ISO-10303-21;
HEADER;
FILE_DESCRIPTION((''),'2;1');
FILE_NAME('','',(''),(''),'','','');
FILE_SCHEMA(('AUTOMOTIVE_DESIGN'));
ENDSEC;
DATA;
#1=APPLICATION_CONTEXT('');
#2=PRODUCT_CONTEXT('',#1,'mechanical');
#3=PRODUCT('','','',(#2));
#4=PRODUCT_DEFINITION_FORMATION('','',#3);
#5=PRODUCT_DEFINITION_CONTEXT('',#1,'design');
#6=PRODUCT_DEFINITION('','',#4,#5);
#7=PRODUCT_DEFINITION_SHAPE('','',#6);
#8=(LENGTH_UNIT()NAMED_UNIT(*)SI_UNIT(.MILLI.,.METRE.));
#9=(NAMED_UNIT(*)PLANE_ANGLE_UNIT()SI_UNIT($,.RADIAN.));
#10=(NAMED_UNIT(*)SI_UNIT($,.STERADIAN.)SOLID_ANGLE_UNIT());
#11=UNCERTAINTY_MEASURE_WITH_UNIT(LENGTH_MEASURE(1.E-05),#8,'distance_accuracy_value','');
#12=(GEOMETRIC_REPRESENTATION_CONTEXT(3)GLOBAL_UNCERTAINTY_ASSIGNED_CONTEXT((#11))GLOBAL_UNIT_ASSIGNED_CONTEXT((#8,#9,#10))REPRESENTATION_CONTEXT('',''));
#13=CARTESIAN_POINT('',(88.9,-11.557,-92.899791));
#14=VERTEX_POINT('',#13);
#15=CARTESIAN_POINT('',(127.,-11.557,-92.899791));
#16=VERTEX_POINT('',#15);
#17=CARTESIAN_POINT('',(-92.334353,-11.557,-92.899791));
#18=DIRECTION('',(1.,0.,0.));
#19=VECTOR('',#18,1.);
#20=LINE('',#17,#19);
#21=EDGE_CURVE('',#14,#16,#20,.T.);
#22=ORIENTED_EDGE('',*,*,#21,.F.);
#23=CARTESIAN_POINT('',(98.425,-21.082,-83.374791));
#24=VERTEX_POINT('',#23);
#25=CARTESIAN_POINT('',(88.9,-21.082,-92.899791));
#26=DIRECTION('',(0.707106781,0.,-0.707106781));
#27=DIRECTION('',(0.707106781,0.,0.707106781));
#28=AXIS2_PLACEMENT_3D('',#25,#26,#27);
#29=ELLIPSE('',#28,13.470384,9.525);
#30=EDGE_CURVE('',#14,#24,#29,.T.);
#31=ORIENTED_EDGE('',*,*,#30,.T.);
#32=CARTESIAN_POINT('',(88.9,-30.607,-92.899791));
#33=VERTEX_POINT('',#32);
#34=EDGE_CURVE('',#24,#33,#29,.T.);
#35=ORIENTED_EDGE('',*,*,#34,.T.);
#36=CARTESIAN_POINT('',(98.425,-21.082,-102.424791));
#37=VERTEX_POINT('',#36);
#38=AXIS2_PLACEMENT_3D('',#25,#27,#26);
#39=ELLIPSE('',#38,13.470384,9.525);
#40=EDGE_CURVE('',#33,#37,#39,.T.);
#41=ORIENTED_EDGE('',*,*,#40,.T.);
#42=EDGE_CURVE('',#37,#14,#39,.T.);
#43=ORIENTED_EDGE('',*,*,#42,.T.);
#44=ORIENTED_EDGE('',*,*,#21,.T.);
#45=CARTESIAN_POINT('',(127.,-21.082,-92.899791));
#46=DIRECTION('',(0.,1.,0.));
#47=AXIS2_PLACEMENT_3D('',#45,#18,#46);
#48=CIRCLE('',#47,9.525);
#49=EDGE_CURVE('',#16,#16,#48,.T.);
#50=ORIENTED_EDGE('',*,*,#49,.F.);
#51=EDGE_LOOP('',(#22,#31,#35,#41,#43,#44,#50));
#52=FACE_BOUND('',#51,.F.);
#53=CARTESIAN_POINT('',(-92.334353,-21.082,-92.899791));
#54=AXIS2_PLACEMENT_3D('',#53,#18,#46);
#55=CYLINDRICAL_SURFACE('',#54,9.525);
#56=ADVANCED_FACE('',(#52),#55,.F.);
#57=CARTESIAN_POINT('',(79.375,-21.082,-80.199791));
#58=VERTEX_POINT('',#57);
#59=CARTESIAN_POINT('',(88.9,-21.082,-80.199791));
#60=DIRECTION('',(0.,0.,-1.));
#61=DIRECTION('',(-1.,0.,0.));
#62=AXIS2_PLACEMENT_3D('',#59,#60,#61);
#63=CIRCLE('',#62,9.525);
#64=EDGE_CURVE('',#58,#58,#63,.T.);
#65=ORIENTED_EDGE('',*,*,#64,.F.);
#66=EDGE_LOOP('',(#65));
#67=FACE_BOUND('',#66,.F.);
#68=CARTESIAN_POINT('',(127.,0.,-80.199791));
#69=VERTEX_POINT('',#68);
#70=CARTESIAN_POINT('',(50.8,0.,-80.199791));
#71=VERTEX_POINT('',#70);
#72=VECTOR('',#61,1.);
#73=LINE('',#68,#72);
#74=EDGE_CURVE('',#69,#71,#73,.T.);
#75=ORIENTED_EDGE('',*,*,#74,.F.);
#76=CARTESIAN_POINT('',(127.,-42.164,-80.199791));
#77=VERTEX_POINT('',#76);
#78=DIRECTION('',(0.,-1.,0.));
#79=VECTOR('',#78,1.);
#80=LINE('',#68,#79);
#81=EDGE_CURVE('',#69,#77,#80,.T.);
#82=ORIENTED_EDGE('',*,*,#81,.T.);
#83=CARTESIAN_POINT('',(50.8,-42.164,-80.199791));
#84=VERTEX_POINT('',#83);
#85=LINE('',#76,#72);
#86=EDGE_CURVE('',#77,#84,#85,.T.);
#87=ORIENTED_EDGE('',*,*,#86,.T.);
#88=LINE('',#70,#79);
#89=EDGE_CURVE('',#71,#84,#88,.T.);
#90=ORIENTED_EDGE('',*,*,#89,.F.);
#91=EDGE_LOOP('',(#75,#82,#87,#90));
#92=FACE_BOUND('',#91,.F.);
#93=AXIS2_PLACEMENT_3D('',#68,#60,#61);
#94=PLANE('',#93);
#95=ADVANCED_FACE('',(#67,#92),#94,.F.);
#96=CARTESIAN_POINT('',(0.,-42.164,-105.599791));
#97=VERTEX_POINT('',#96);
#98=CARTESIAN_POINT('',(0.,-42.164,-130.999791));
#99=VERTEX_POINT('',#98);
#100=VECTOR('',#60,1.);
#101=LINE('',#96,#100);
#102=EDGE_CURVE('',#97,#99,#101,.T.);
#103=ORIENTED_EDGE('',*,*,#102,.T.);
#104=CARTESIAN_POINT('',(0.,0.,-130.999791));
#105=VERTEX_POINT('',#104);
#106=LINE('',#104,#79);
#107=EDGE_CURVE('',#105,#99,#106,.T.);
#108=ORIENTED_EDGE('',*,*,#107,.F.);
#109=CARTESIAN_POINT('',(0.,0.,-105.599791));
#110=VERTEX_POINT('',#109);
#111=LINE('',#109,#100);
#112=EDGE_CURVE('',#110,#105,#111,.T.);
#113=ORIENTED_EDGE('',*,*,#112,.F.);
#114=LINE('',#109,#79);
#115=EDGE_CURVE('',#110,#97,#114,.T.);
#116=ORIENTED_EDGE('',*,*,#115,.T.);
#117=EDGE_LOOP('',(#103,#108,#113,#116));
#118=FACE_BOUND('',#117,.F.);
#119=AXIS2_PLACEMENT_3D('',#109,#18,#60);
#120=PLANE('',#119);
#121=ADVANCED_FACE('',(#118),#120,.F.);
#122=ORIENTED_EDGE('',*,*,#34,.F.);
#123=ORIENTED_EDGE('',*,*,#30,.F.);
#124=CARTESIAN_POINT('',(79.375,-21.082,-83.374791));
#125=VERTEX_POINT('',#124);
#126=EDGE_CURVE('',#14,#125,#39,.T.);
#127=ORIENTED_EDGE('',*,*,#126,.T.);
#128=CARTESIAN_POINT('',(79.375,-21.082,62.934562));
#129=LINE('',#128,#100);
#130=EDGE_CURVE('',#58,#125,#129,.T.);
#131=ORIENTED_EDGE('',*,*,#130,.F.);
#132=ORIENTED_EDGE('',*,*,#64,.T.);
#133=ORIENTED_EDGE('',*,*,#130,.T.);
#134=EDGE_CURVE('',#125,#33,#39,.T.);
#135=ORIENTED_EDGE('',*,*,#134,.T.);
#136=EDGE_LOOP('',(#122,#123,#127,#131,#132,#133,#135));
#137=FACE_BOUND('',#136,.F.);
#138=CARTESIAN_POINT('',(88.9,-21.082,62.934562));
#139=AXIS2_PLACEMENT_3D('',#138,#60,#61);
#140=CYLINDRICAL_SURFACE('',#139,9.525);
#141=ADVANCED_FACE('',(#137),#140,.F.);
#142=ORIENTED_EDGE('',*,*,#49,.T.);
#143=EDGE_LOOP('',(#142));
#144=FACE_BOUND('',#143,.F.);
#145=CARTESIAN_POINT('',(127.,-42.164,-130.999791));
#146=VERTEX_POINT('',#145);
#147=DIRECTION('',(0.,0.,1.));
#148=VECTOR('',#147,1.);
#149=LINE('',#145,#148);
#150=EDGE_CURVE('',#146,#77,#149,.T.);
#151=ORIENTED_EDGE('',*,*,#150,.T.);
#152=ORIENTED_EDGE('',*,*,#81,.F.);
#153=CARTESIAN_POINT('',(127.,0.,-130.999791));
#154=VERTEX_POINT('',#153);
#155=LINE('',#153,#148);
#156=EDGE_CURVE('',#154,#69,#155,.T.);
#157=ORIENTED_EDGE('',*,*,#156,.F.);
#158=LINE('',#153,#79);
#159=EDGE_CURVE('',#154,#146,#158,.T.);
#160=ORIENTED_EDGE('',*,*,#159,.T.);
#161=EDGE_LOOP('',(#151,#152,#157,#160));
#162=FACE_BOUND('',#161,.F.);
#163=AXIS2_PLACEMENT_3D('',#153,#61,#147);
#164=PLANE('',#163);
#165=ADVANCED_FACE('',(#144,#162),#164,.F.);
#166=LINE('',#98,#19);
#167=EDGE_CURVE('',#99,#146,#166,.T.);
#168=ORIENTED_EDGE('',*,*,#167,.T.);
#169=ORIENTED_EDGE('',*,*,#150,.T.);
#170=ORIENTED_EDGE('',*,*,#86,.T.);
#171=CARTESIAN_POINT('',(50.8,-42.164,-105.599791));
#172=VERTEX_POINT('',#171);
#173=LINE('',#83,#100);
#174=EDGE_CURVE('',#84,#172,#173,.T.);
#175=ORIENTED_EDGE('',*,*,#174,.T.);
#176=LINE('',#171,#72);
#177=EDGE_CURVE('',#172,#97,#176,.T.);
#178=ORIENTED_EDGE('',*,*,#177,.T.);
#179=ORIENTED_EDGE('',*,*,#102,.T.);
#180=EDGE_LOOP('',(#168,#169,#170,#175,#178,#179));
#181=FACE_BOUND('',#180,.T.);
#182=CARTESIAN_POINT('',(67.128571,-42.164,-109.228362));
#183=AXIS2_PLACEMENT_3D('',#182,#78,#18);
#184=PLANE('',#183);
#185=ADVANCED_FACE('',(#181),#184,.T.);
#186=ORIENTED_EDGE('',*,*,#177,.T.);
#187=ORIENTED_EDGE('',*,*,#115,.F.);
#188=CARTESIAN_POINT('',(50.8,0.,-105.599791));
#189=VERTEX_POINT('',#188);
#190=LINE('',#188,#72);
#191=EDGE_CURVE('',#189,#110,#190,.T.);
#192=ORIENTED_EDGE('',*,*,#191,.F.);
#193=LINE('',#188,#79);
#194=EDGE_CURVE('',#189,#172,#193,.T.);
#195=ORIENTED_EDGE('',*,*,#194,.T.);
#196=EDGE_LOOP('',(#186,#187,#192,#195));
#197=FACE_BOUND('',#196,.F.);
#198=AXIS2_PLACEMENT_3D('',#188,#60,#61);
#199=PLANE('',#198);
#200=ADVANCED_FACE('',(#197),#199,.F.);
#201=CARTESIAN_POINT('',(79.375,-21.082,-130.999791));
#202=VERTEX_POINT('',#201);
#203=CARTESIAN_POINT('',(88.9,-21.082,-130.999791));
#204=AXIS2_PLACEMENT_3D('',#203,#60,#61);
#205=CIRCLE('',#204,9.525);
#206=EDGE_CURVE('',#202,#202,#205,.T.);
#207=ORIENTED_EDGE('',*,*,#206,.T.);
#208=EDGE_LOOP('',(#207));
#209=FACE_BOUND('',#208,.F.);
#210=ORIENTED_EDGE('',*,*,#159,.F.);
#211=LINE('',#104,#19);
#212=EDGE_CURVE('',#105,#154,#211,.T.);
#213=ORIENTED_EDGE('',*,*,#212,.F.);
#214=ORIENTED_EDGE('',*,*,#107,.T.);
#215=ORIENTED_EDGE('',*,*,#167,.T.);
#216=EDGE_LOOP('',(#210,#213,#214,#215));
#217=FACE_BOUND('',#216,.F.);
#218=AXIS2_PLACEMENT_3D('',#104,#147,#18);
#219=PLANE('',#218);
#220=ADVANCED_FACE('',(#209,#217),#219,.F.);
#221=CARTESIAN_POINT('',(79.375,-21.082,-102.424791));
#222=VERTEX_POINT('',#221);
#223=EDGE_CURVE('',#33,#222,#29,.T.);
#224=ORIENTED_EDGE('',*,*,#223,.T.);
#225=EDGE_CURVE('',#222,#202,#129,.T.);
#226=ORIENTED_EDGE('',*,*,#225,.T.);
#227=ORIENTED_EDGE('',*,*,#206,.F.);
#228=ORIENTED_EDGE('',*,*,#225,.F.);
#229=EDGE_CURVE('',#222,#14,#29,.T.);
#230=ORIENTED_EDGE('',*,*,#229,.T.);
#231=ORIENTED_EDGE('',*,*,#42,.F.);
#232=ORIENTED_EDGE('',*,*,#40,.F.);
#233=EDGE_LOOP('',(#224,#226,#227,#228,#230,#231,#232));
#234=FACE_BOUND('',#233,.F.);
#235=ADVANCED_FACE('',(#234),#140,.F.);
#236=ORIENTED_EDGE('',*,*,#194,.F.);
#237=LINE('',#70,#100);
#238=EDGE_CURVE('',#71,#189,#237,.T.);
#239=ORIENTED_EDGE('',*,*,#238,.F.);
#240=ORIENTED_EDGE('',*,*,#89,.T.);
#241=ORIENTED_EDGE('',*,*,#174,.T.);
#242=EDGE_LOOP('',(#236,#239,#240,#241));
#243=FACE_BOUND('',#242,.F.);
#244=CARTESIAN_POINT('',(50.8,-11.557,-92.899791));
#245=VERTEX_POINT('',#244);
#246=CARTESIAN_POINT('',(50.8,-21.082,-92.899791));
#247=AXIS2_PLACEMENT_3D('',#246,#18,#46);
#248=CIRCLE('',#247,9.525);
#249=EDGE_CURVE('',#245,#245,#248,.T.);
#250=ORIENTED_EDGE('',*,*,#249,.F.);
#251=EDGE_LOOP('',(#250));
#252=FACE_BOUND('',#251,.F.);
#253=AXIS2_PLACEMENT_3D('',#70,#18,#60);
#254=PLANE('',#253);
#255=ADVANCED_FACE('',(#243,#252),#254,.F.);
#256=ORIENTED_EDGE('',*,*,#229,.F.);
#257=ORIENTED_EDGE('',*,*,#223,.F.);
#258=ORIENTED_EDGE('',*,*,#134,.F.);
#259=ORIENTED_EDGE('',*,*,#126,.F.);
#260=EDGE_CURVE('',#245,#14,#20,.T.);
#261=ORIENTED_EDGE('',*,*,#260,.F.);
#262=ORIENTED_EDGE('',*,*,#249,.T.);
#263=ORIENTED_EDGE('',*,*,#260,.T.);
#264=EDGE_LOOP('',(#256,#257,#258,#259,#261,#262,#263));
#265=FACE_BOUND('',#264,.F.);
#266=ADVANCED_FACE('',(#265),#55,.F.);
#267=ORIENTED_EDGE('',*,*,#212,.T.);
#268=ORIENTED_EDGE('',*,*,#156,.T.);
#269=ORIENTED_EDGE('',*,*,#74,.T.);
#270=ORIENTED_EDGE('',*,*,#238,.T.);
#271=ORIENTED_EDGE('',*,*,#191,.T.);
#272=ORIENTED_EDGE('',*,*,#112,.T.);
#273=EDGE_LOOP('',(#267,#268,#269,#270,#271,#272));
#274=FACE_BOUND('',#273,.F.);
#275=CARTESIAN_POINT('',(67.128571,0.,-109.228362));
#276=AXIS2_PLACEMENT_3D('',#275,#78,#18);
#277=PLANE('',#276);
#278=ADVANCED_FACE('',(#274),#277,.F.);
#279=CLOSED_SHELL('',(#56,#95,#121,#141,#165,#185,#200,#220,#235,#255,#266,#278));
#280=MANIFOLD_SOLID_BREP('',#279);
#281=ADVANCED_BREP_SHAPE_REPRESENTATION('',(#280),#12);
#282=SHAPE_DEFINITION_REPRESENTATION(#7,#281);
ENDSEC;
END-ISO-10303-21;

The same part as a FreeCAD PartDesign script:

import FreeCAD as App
import Part
import Sketcher
Q = App.Units.Quantity

doc = App.newDocument("Part")
params = doc.addObject("Spreadsheet::Sheet", "Params")
for row, (alias, value) in enumerate([
    ("sketch1_width", "3 in"),
    ("sketch1_width2", "2 in"),
    ("pad1_length", "1.66 in"),
    ("sketch2_diameter", "0.75 in"),
    ("hole_diameter", "0.75 in"),
    ("sketch3_diameter", "0.75 in"),
    ("hole2_diameter", "0.75 in"),
], start=1):
    params.set(f"A{row}", alias)
    params.set(f"B{row}", "=" + value)
    params.setAlias(f"B{row}", alias)

body = doc.addObject("PartDesign::Body", "Body")

# Sketch on XZ plane
sketch1 = doc.addObject("Sketcher::SketchObject", "Sketch")
body.addObject(sketch1)
sketch1.AttachmentSupport = (doc.XZ_Plane, [""])
sketch1.MapMode = "FlatFace"
sketch1.addGeometry(Part.LineSegment(App.Vector(127, -80.199791, 0), App.Vector(50.8, -80.199791, 0)), False)
sketch1.addGeometry(Part.LineSegment(App.Vector(50.8, -80.199791, 0), App.Vector(50.8, -105.599791, 0)), False)
sketch1.addGeometry(Part.LineSegment(App.Vector(50.8, -105.599791, 0), App.Vector(0, -105.599791, 0)), False)
sketch1.addGeometry(Part.LineSegment(App.Vector(0, -105.599791, 0), App.Vector(0, -130.999791, 0)), False)
sketch1.addGeometry(Part.LineSegment(App.Vector(0, -130.999791, 0), App.Vector(127, -130.999791, 0)), False)
sketch1.addGeometry(Part.LineSegment(App.Vector(127, -130.999791, 0), App.Vector(127, -80.199791, 0)), False)
sketch1.addConstraint(Sketcher.Constraint("Coincident", 0, 2, 1, 1))
sketch1.addConstraint(Sketcher.Constraint("Coincident", 1, 2, 2, 1))
sketch1.addConstraint(Sketcher.Constraint("Coincident", 2, 2, 3, 1))
sketch1.addConstraint(Sketcher.Constraint("Coincident", 3, 2, 4, 1))
sketch1.addConstraint(Sketcher.Constraint("Coincident", 4, 2, 5, 1))
sketch1.addConstraint(Sketcher.Constraint("Coincident", 5, 2, 0, 1))
sketch1.addConstraint(Sketcher.Constraint("Horizontal", 0))
sketch1.addConstraint(Sketcher.Constraint("Vertical", 1))
sketch1.addConstraint(Sketcher.Constraint("Horizontal", 2))
sketch1.addConstraint(Sketcher.Constraint("Vertical", 3))
sketch1.addConstraint(Sketcher.Constraint("Horizontal", 4))
sketch1.addConstraint(Sketcher.Constraint("Vertical", 5))
sketch1.addConstraint(Sketcher.Constraint("PointOnObject", 2, 2, -2))
sketch1.addConstraint(Sketcher.Constraint("Equal", 1, 3))
sketch1.addConstraint(Sketcher.Constraint("Equal", 2, 5))
sketch1.addConstraint(Sketcher.Constraint("DistanceX", 0, 2, 0, 1, Q("3 in")))
sketch1.addConstraint(Sketcher.Constraint("DistanceX", 2, 2, 2, 1, Q("2 in")))
sketch1.addConstraint(Sketcher.Constraint("DistanceY", 0, 2, -1, 1, Q("80.199791 mm")))
sketch1.setExpression("Constraints[15]", "Params.sketch1_width")
sketch1.setExpression("Constraints[16]", "Params.sketch1_width2")
pad1 = doc.addObject("PartDesign::Pad", "Pad")
body.addObject(pad1)
pad1.Profile = sketch1
pad1.setExpression("Length", "Params.pad1_length")

# Sketch on YZ plane
sketch2 = doc.addObject("Sketcher::SketchObject", "Sketch001")
body.addObject(sketch2)
sketch2.AttachmentSupport = (doc.YZ_Plane, [""])
sketch2.MapMode = "FlatFace"
sketch2.AttachmentOffset = App.Placement(App.Vector(0, 0, 2 * 25.4), App.Rotation())
sketch2.addGeometry(Part.Circle(App.Vector(-21.082, -92.899791, 0), App.Vector(0, 0, 1), 9.525), False)
sketch2.addConstraint(Sketcher.Constraint("Diameter", 0, Q("0.75 in")))
sketch2.addConstraint(Sketcher.Constraint("DistanceX", 0, 3, -1, 1, Q("0.83 in")))
sketch2.addConstraint(Sketcher.Constraint("DistanceY", 0, 3, -1, 1, Q("92.899791 mm")))
sketch2.setExpression("Constraints[0]", "Params.sketch2_diameter")
doc.recompute()
hole = doc.addObject("PartDesign::Hole", "Hole")
body.addObject(hole)
hole.Profile = sketch2
hole.ThreadType = "None"
hole.setExpression("Diameter", "Params.hole_diameter")
hole.DepthType = "ThroughAll"
hole.Reversed = True

# Sketch on XY plane
sketch3 = doc.addObject("Sketcher::SketchObject", "Sketch002")
body.addObject(sketch3)
sketch3.AttachmentSupport = (doc.XY_Plane, [""])
sketch3.MapMode = "FlatFace"
sketch3.AttachmentOffset = App.Placement(App.Vector(0, 0, -80.199791), App.Rotation())
sketch3.addGeometry(Part.Circle(App.Vector(88.9, -21.082, 0), App.Vector(0, 0, 1), 9.525), False)
sketch3.addConstraint(Sketcher.Constraint("Diameter", 0, Q("0.75 in")))
sketch3.addConstraint(Sketcher.Constraint("DistanceX", -1, 1, 0, 3, Q("3.5 in")))
sketch3.addConstraint(Sketcher.Constraint("DistanceY", 0, 3, -1, 1, Q("0.83 in")))
sketch3.setExpression("Constraints[0]", "Params.sketch3_diameter")
doc.recompute()
hole2 = doc.addObject("PartDesign::Hole", "Hole001")
body.addObject(hole2)
hole2.Profile = sketch3
hole2.ThreadType = "None"
hole2.setExpression("Diameter", "Params.hole2_diameter")
hole2.DepthType = "ThroughAll"

doc.recompute()
